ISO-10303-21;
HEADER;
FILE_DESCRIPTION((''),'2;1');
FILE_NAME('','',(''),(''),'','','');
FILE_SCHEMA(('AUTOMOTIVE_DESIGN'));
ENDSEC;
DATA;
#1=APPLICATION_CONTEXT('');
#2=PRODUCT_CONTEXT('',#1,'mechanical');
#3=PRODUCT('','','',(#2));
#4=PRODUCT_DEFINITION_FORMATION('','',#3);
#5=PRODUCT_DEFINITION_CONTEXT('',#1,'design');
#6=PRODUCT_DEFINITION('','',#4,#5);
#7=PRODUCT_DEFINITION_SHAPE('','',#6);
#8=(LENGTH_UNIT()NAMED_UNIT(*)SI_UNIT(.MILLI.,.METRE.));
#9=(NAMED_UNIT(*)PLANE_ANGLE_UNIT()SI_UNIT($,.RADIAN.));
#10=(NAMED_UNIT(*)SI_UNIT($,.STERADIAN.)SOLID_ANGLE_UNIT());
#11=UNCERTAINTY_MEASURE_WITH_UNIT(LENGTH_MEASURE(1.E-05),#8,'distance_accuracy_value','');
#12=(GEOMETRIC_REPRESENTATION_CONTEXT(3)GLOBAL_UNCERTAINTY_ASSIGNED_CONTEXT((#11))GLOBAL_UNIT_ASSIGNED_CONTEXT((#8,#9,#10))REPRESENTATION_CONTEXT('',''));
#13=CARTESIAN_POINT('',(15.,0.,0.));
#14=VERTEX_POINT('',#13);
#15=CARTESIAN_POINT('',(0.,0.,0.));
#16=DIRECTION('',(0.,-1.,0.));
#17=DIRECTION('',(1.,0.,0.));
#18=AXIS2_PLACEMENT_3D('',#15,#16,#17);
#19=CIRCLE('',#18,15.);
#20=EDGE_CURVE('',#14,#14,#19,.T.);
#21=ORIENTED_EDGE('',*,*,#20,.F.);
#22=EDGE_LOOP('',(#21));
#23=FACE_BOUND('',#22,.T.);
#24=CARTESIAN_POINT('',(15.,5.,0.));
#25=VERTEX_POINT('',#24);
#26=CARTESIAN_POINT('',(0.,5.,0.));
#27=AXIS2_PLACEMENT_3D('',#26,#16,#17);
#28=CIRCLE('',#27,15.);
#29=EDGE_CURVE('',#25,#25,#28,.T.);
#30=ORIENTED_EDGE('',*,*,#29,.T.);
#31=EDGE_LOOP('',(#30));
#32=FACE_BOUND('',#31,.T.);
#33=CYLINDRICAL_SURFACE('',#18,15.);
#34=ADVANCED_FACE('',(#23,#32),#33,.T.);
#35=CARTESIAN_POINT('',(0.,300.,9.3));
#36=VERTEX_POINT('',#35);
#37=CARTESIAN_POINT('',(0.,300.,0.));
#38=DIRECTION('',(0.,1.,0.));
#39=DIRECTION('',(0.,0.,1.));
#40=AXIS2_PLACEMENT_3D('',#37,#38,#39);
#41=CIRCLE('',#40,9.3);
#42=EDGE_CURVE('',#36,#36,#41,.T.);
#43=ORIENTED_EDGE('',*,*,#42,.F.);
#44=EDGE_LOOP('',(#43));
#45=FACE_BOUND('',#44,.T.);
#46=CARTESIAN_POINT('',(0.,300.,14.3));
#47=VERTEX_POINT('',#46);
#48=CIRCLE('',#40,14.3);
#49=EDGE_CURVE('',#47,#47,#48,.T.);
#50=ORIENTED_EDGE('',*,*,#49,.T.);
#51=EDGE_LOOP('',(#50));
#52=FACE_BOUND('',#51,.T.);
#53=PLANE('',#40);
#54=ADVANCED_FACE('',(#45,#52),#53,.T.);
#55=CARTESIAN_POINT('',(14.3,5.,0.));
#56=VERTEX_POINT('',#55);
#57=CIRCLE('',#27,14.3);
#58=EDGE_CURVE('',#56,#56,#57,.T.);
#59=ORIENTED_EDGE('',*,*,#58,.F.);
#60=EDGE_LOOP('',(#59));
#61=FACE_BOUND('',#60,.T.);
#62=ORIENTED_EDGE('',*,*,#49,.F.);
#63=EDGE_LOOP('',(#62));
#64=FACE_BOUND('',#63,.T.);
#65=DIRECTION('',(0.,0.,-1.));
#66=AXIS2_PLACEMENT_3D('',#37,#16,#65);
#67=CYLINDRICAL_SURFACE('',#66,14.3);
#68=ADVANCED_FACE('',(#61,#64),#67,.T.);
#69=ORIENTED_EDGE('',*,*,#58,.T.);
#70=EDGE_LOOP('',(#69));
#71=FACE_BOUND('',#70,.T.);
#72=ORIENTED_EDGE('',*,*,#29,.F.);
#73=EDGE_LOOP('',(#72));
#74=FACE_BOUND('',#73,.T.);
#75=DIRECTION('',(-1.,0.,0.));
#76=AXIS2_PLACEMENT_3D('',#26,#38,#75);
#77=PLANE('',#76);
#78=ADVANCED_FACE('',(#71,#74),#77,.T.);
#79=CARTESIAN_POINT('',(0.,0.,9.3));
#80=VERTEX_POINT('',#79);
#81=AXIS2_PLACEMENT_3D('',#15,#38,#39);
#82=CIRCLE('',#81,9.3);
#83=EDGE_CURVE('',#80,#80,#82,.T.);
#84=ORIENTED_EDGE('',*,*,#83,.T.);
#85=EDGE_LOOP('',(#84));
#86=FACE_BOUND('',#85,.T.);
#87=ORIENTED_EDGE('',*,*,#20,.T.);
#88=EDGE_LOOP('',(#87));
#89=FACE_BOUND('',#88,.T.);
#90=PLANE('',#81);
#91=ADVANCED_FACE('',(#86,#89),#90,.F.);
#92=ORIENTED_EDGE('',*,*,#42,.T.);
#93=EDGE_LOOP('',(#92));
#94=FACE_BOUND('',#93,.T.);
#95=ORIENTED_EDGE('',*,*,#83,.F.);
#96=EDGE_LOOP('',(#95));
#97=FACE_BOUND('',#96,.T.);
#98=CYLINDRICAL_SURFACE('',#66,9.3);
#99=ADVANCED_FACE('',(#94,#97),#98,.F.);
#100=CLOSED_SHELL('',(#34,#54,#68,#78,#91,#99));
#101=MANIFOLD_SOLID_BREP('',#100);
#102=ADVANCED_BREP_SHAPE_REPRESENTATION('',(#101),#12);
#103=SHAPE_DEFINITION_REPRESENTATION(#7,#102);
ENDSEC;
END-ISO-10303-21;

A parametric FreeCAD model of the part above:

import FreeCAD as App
import Part
import Sketcher

V = App.Vector
Q = App.Units.Quantity

doc = App.newDocument("Part")
params = doc.addObject("Spreadsheet::Sheet", "Params")
for row, (alias, value) in enumerate([
    ("sketch1_diameter", "28.6 mm"),
    ("sketch1_diameter2", "18.6 mm"),
    ("pad1_length", "300 mm"),
    ("sketch2_height", "5 mm"),
    ("sketch2_width", "0.7 mm"),
    ("revolution_angle", "360 deg"),
], start=1):
    params.set(f"A{row}", alias)
    params.set(f"B{row}", "=" + value)
    params.setAlias(f"B{row}", alias)

body = doc.addObject("PartDesign::Body", "Body")

# Sketch on XZ plane
sketch1 = body.newObject("Sketcher::SketchObject", "Sketch")
sketch1.AttachmentSupport = (doc.getObject("XZ_Plane"), [""])
sketch1.MapMode = "FlatFace"
sketch1.addGeometry(Part.Circle(V(0, 0, 0), V(0, 0, 1), 14.3), False)
sketch1.addGeometry(Part.Circle(V(0, 0, 0), V(0, 0, 1), 9.3), False)
sketch1.addConstraint(Sketcher.Constraint("Coincident", 0, 3, -1, 1))
sketch1.addConstraint(Sketcher.Constraint("Coincident", 1, 3, -1, 1))
sketch1.addConstraint(Sketcher.Constraint("Diameter", 0, Q("28.6 mm")))
sketch1.addConstraint(Sketcher.Constraint("Diameter", 1, Q("18.6 mm")))
sketch1.setExpression("Constraints[2]", "Params.sketch1_diameter")
sketch1.setExpression("Constraints[3]", "Params.sketch1_diameter2")
pad1 = body.newObject("PartDesign::Pad", "Pad")
pad1.Profile = sketch1
pad1.setExpression("Length", "Params.pad1_length")
pad1.Reversed = True

# Sketch on XY plane
sketch2 = body.newObject("Sketcher::SketchObject", "Sketch001")
sketch2.AttachmentSupport = (doc.getObject("XY_Plane"), [""])
sketch2.MapMode = "FlatFace"
sketch2.addGeometry(Part.LineSegment(V(-15, 5, 0), V(-15, 0, 0)), False)
sketch2.addGeometry(Part.LineSegment(V(-15, 0, 0), V(-14.3, 0, 0)), False)
sketch2.addGeometry(Part.LineSegment(V(-14.3, 0, 0), V(-14.3, 5, 0)), False)
sketch2.addGeometry(Part.LineSegment(V(-14.3, 5, 0), V(-15, 5, 0)), False)
sketch2.addConstraint(Sketcher.Constraint("Coincident", 0, 2, 1, 1))
sketch2.addConstraint(Sketcher.Constraint("Coincident", 1, 2, 2, 1))
sketch2.addConstraint(Sketcher.Constraint("Coincident", 2, 2, 3, 1))
sketch2.addConstraint(Sketcher.Constraint("Coincident", 3, 2, 0, 1))
sketch2.addConstraint(Sketcher.Constraint("Vertical", 0))
sketch2.addConstraint(Sketcher.Constraint("Horizontal", 1))
sketch2.addConstraint(Sketcher.Constraint("Vertical", 2))
sketch2.addConstraint(Sketcher.Constraint("Horizontal", 3))
sketch2.addConstraint(Sketcher.Constraint("PointOnObject", 0, 2, -1))
sketch2.addConstraint(Sketcher.Constraint("DistanceY", 0, 2, 0, 1, Q("5 mm")))
sketch2.addConstraint(Sketcher.Constraint("DistanceX", 1, 1, 1, 2, Q("0.7 mm")))
sketch2.addConstraint(Sketcher.Constraint("DistanceX", 0, 2, -1, 1, Q("15 mm")))
sketch2.setExpression("Constraints[9]", "Params.sketch2_height")
sketch2.setExpression("Constraints[10]", "Params.sketch2_width")
revolution = body.newObject("PartDesign::Revolution", "Revolution")
revolution.Profile = sketch2
revolution.ReferenceAxis = (sketch2, ["V_Axis"])
revolution.setExpression("Angle", "Params.revolution_angle")

doc.recompute()
